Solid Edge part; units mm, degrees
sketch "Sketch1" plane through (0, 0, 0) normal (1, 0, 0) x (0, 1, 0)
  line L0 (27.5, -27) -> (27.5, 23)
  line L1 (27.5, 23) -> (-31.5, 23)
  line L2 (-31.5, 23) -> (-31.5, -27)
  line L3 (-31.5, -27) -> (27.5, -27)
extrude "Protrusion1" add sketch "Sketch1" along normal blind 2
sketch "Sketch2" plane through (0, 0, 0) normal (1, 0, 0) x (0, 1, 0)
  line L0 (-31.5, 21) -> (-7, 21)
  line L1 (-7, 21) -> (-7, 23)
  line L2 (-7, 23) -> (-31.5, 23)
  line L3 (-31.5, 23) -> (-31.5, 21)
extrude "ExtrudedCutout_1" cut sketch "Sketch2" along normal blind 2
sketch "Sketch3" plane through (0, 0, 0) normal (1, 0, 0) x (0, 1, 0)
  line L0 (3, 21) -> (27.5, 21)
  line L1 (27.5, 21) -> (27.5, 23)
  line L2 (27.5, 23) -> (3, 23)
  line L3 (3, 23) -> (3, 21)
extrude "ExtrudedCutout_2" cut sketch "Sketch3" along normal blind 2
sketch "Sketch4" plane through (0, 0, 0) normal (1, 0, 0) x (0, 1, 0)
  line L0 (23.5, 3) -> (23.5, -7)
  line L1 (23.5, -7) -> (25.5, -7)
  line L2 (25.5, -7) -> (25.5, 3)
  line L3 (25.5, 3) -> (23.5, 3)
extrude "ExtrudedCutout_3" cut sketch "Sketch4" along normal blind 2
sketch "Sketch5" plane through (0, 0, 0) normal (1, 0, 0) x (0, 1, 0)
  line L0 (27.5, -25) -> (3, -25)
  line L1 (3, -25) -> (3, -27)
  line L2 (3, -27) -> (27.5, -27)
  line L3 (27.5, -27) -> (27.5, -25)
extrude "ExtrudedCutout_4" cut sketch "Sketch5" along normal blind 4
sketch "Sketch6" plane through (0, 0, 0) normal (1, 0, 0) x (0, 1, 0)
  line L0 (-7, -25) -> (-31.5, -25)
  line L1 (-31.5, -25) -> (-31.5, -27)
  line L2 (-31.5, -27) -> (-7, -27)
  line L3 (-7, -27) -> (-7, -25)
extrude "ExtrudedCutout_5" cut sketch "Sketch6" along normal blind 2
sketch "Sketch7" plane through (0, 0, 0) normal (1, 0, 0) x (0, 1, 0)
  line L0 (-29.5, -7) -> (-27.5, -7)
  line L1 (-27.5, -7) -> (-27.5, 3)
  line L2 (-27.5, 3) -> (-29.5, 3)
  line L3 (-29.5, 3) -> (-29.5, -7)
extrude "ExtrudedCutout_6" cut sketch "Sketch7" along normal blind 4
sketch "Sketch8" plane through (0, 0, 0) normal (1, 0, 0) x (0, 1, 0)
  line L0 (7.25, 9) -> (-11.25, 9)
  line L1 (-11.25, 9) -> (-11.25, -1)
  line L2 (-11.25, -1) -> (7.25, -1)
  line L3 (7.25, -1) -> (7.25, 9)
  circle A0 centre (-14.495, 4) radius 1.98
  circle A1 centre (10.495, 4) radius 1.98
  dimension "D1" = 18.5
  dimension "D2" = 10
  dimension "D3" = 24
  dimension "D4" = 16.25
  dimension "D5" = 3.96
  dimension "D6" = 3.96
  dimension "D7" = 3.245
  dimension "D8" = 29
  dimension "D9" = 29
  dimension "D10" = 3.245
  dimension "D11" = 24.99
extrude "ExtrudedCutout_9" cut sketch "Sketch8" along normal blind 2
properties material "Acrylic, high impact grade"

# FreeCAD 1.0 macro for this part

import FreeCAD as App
import Part
import Sketcher

V = App.Vector


def add_polygon(sketch, points):
    """Adds a closed chain of lines whose ends are joined by coincident constraints."""
    first, n = sketch.GeometryCount, len(points)
    for a, b in zip(points, points[1:] + points[:1]):
        sketch.addGeometry(Part.LineSegment(App.Vector(*a, 0), App.Vector(*b, 0)), False)
    for i in range(n):
        sketch.addConstraint(Sketcher.Constraint("Coincident", first + i, 2, first + (i + 1) % n, 1))

doc = App.newDocument("Part")
params = doc.addObject("Spreadsheet::Sheet", "Params")
for row, (alias, value) in enumerate([
    ("sketch1_width", "59 mm"),
    ("sketch1_height", "50 mm"),
    ("pad1_length", "2 mm"),
    ("sketch2_height", "2 mm"),
    ("sketch2_width", "24.5 mm"),
    ("pocket1_length", "2 mm"),
    ("sketch3_height", "2 mm"),
    ("sketch3_width", "24.5 mm"),
    ("pocket2_length", "2 mm"),
    ("sketch4_width", "2 mm"),
    ("sketch4_height", "10 mm"),
    ("pocket3_length", "2 mm"),
    ("sketch5_height", "2 mm"),
    ("sketch5_width", "24.5 mm"),
    ("pocket4_length", "4 mm"),
    ("sketch6_height", "2 mm"),
    ("sketch6_width", "24.5 mm"),
    ("pocket5_length", "2 mm"),
    ("sketch7_width", "2 mm"),
    ("sketch7_height", "10 mm"),
    ("pocket6_length", "4 mm"),
    ("sketch8_diameter", "3.96 mm"),
    ("sketch8_height", "10 mm"),
    ("sketch8_width", "18.5 mm"),
    ("pocket7_length", "2 mm"),
], start=1):
    params.set(f"A{row}", alias)
    params.set(f"B{row}", "=" + value)
    params.setAlias(f"B{row}", alias)

body = doc.addObject("PartDesign::Body", "Body")

sketch1 = body.newObject("Sketcher::SketchObject", "Sketch")
sketch1.AttachmentSupport = (doc.getObject("YZ_Plane"), [""])
sketch1.MapMode = "FlatFace"
add_polygon(sketch1, [(-32, -27), (28, -27), (28, 23), (-32, 23)])
sketch1.addConstraint([
    Sketcher.Constraint("Horizontal", 0),
    Sketcher.Constraint("Vertical", 1),
    Sketcher.Constraint("Horizontal", 2),
    Sketcher.Constraint("Vertical", 3),
    Sketcher.Constraint("DistanceX", 0, 1, 0, 2, 59.0),
    Sketcher.Constraint("DistanceY", 1, 1, 1, 2, 50.0),
    Sketcher.Constraint("DistanceY", 0, 2, -1, 1, 27.0),
    Sketcher.Constraint("DistanceX", -1, 1, 0, 2, 27.5),
])
sketch1.setExpression("Constraints[8]", "Params.sketch1_width")
sketch1.setExpression("Constraints[9]", "Params.sketch1_height")
pad1 = body.newObject("PartDesign::Pad", "Pad")
pad1.Profile = sketch1
pad1.setExpression("Length", "Params.pad1_length")

sketch2 = body.newObject("Sketcher::SketchObject", "Sketch001")
sketch2.AttachmentSupport = (doc.getObject("YZ_Plane"), [""])
sketch2.MapMode = "FlatFace"
add_polygon(sketch2, [(-31.5, 23), (-31.5, 21), (-7, 21), (-7, 23)])
sketch2.addConstraint([
    Sketcher.Constraint("Vertical", 0),
    Sketcher.Constraint("Horizontal", 1),
    Sketcher.Constraint("Vertical", 2),
    Sketcher.Constraint("Horizontal", 3),
    Sketcher.Constraint("DistanceY", 0, 2, 0, 1, 2.0),
    Sketcher.Constraint("DistanceX", 1, 1, 1, 2, 24.5),
    Sketcher.Constraint("DistanceY", -1, 1, 0, 2, 21.0),
    Sketcher.Constraint("DistanceX", 1, 2, -1, 1, 7.0),
])
sketch2.setExpression("Constraints[8]", "Params.sketch2_height")
sketch2.setExpression("Constraints[9]", "Params.sketch2_width")
pocket1 = body.newObject("PartDesign::Pocket", "Pocket")
pocket1.Profile = sketch2
pocket1.setExpression("Length", "Params.pocket1_length")
pocket1.Reversed = True

sketch3 = body.newObject("Sketcher::SketchObject", "Sketch002")
sketch3.AttachmentSupport = (doc.getObject("YZ_Plane"), [""])
sketch3.MapMode = "FlatFace"
add_polygon(sketch3, [(3, 23), (3, 21), (27.5, 21), (27.5, 23)])
sketch3.addConstraint([
    Sketcher.Constraint("Vertical", 0),
    Sketcher.Constraint("Horizontal", 1),
    Sketcher.Constraint("Vertical", 2),
    Sketcher.Constraint("Horizontal", 3),
    Sketcher.Constraint("DistanceY", 0, 2, 0, 1, 2.0),
    Sketcher.Constraint("DistanceX", 1, 1, 1, 2, 24.5),
    Sketcher.Constraint("DistanceX", -1, 1, 0, 2, 3.0),
    Sketcher.Constraint("DistanceY", -1, 1, 0, 2, 21.0),
])
sketch3.setExpression("Constraints[8]", "Params.sketch3_height")
sketch3.setExpression("Constraints[9]", "Params.sketch3_width")
pocket2 = body.newObject("PartDesign::Pocket", "Pocket001")
pocket2.Profile = sketch3
pocket2.setExpression("Length", "Params.pocket2_length")
pocket2.Reversed = True

sketch4 = body.newObject("Sketcher::SketchObject", "Sketch003")
sketch4.AttachmentSupport = (doc.getObject("YZ_Plane"), [""])
sketch4.MapMode = "FlatFace"
add_polygon(sketch4, [(25.5, 3), (23.5, 3), (23.5, -7), (25.5, -7)])
sketch4.addConstraint([
    Sketcher.Constraint("Horizontal", 0),
    Sketcher.Constraint("Vertical", 1),
    Sketcher.Constraint("Horizontal", 2),
    Sketcher.Constraint("Vertical", 3),
    Sketcher.Constraint("DistanceX", 0, 2, 0, 1, 2.0),
    Sketcher.Constraint("DistanceY", 1, 2, 1, 1, 10.0),
    Sketcher.Constraint("DistanceY", -1, 1, 0, 2, 3.0),
    Sketcher.Constraint("DistanceX", -1, 1, 0, 2, 23.5),
])
sketch4.setExpression("Constraints[8]", "Params.sketch4_width")
sketch4.setExpression("Constraints[9]", "Params.sketch4_height")
pocket3 = body.newObject("PartDesign::Pocket", "Pocket002")
pocket3.Profile = sketch4
pocket3.setExpression("Length", "Params.pocket3_length")
pocket3.Reversed = True

sketch5 = body.newObject("Sketcher::SketchObject", "Sketch004")
sketch5.AttachmentSupport = (doc.getObject("YZ_Plane"), [""])
sketch5.MapMode = "FlatFace"
add_polygon(sketch5, [(27.5, -27), (27.5, -25), (3, -25), (3, -27)])
sketch5.addConstraint([
    Sketcher.Constraint("Vertical", 0),
    Sketcher.Constraint("Horizontal", 1),
    Sketcher.Constraint("Vertical", 2),
    Sketcher.Constraint("Horizontal", 3),
    Sketcher.Constraint("DistanceY", 0, 1, 0, 2, 2.0),
    Sketcher.Constraint("DistanceX", 1, 2, 1, 1, 24.5),
    Sketcher.Constraint("DistanceY", 0, 2, -1, 1, 25.0),
    Sketcher.Constraint("DistanceX", -1, 1, 1, 2, 3.0),
])
sketch5.setExpression("Constraints[8]", "Params.sketch5_height")
sketch5.setExpression("Constraints[9]", "Params.sketch5_width")
pocket4 = body.newObject("PartDesign::Pocket", "Pocket003")
pocket4.Profile = sketch5
pocket4.setExpression("Length", "Params.pocket4_length")
pocket4.Reversed = True

sketch6 = body.newObject("Sketcher::SketchObject", "Sketch005")
sketch6.AttachmentSupport = (doc.getObject("YZ_Plane"), [""])
sketch6.MapMode = "FlatFace"
add_polygon(sketch6, [(-7, -27), (-7, -25), (-31.5, -25), (-31.5, -27)])
sketch6.addConstraint([
    Sketcher.Constraint("Vertical", 0),
    Sketcher.Constraint("Horizontal", 1),
    Sketcher.Constraint("Vertical", 2),
    Sketcher.Constraint("Horizontal", 3),
    Sketcher.Constraint("DistanceY", 0, 1, 0, 2, 2.0),
    Sketcher.Constraint("DistanceX", 1, 2, 1, 1, 24.5),
    Sketcher.Constraint("DistanceX", 0, 2, -1, 1, 7.0),
    Sketcher.Constraint("DistanceY", 0, 2, -1, 1, 25.0),
])
sketch6.setExpression("Constraints[8]", "Params.sketch6_height")
sketch6.setExpression("Constraints[9]", "Params.sketch6_width")
pocket5 = body.newObject("PartDesign::Pocket", "Pocket004")
pocket5.Profile = sketch6
pocket5.setExpression("Length", "Params.pocket5_length")
pocket5.Reversed = True

sketch7 = body.newObject("Sketcher::SketchObject", "Sketch006")
sketch7.AttachmentSupport = (doc.getObject("YZ_Plane"), [""])
sketch7.MapMode = "FlatFace"
add_polygon(sketch7, [(-29.5, 3), (-29.5, -7), (-27.5, -7), (-27.5, 3)])
sketch7.addConstraint([
    Sketcher.Constraint("Vertical", 0),
    Sketcher.Constraint("Horizontal", 1),
    Sketcher.Constraint("Vertical", 2),
    Sketcher.Constraint("Horizontal", 3),
    Sketcher.Constraint("DistanceX", 1, 1, 1, 2, 2.0),
    Sketcher.Constraint("DistanceY", 0, 2, 0, 1, 10.0),
    Sketcher.Constraint("DistanceY", 0, 2, -1, 1, 7.0),
    Sketcher.Constraint("DistanceX", 0, 2, -1, 1, 29.5),
])
sketch7.setExpression("Constraints[8]", "Params.sketch7_width")
sketch7.setExpression("Constraints[9]", "Params.sketch7_height")
pocket6 = body.newObject("PartDesign::Pocket", "Pocket005")
pocket6.Profile = sketch7
pocket6.setExpression("Length", "Params.pocket6_length")
pocket6.Reversed = True

sketch8 = body.newObject("Sketcher::SketchObject", "Sketch007")
sketch8.AttachmentSupport = (doc.getObject("YZ_Plane"), [""])
sketch8.MapMode = "FlatFace"
add_polygon(sketch8, [(7.2, -1), (7.2, 9), (-11.2, 9), (-11.2, -1)])
sketch8.addGeometry(Part.Circle(V(-14.5, 4, 0), V(0, 0, 1), 2), False)
sketch8.addGeometry(Part.Circle(V(10.5, 4, 0), V(0, 0, 1), 2), False)
sketch8.addConstraint([
    Sketcher.Constraint("Vertical", 0),
    Sketcher.Constraint("Horizontal", 1),
    Sketcher.Constraint("Vertical", 2),
    Sketcher.Constraint("Horizontal", 3),
    Sketcher.Constraint("Equal", 4, 5),
    Sketcher.Constraint("Horizontal", 4, 3, 5, 3),
    Sketcher.Constraint("Diameter", 4, 3.96),
    Sketcher.Constraint("DistanceY", 0, 1, 0, 2, 10.0),
    Sketcher.Constraint("DistanceX", 1, 2, 1, 1, 18.5),
    Sketcher.Constraint("DistanceY", -1, 1, 4, 3, 4.0),
    Sketcher.Constraint("DistanceY", -1, 1, 0, 2, 9.0),
    Sketcher.Constraint("DistanceX", -1, 1, 0, 2, 7.25),
    Sketcher.Constraint("DistanceX", 4, 3, 5, 3, 24.99),
    Sketcher.Constraint("DistanceX", 4, 3, -1, 1, 14.495),
])
sketch8.setExpression("Constraints[10]", "Params.sketch8_diameter")
sketch8.setExpression("Constraints[11]", "Params.sketch8_height")
sketch8.setExpression("Constraints[12]", "Params.sketch8_width")
pocket7 = body.newObject("PartDesign::Pocket", "Pocket006")
pocket7.Profile = sketch8
pocket7.setExpression("Length", "Params.pocket7_length")
pocket7.Reversed = True

doc.recompute()
